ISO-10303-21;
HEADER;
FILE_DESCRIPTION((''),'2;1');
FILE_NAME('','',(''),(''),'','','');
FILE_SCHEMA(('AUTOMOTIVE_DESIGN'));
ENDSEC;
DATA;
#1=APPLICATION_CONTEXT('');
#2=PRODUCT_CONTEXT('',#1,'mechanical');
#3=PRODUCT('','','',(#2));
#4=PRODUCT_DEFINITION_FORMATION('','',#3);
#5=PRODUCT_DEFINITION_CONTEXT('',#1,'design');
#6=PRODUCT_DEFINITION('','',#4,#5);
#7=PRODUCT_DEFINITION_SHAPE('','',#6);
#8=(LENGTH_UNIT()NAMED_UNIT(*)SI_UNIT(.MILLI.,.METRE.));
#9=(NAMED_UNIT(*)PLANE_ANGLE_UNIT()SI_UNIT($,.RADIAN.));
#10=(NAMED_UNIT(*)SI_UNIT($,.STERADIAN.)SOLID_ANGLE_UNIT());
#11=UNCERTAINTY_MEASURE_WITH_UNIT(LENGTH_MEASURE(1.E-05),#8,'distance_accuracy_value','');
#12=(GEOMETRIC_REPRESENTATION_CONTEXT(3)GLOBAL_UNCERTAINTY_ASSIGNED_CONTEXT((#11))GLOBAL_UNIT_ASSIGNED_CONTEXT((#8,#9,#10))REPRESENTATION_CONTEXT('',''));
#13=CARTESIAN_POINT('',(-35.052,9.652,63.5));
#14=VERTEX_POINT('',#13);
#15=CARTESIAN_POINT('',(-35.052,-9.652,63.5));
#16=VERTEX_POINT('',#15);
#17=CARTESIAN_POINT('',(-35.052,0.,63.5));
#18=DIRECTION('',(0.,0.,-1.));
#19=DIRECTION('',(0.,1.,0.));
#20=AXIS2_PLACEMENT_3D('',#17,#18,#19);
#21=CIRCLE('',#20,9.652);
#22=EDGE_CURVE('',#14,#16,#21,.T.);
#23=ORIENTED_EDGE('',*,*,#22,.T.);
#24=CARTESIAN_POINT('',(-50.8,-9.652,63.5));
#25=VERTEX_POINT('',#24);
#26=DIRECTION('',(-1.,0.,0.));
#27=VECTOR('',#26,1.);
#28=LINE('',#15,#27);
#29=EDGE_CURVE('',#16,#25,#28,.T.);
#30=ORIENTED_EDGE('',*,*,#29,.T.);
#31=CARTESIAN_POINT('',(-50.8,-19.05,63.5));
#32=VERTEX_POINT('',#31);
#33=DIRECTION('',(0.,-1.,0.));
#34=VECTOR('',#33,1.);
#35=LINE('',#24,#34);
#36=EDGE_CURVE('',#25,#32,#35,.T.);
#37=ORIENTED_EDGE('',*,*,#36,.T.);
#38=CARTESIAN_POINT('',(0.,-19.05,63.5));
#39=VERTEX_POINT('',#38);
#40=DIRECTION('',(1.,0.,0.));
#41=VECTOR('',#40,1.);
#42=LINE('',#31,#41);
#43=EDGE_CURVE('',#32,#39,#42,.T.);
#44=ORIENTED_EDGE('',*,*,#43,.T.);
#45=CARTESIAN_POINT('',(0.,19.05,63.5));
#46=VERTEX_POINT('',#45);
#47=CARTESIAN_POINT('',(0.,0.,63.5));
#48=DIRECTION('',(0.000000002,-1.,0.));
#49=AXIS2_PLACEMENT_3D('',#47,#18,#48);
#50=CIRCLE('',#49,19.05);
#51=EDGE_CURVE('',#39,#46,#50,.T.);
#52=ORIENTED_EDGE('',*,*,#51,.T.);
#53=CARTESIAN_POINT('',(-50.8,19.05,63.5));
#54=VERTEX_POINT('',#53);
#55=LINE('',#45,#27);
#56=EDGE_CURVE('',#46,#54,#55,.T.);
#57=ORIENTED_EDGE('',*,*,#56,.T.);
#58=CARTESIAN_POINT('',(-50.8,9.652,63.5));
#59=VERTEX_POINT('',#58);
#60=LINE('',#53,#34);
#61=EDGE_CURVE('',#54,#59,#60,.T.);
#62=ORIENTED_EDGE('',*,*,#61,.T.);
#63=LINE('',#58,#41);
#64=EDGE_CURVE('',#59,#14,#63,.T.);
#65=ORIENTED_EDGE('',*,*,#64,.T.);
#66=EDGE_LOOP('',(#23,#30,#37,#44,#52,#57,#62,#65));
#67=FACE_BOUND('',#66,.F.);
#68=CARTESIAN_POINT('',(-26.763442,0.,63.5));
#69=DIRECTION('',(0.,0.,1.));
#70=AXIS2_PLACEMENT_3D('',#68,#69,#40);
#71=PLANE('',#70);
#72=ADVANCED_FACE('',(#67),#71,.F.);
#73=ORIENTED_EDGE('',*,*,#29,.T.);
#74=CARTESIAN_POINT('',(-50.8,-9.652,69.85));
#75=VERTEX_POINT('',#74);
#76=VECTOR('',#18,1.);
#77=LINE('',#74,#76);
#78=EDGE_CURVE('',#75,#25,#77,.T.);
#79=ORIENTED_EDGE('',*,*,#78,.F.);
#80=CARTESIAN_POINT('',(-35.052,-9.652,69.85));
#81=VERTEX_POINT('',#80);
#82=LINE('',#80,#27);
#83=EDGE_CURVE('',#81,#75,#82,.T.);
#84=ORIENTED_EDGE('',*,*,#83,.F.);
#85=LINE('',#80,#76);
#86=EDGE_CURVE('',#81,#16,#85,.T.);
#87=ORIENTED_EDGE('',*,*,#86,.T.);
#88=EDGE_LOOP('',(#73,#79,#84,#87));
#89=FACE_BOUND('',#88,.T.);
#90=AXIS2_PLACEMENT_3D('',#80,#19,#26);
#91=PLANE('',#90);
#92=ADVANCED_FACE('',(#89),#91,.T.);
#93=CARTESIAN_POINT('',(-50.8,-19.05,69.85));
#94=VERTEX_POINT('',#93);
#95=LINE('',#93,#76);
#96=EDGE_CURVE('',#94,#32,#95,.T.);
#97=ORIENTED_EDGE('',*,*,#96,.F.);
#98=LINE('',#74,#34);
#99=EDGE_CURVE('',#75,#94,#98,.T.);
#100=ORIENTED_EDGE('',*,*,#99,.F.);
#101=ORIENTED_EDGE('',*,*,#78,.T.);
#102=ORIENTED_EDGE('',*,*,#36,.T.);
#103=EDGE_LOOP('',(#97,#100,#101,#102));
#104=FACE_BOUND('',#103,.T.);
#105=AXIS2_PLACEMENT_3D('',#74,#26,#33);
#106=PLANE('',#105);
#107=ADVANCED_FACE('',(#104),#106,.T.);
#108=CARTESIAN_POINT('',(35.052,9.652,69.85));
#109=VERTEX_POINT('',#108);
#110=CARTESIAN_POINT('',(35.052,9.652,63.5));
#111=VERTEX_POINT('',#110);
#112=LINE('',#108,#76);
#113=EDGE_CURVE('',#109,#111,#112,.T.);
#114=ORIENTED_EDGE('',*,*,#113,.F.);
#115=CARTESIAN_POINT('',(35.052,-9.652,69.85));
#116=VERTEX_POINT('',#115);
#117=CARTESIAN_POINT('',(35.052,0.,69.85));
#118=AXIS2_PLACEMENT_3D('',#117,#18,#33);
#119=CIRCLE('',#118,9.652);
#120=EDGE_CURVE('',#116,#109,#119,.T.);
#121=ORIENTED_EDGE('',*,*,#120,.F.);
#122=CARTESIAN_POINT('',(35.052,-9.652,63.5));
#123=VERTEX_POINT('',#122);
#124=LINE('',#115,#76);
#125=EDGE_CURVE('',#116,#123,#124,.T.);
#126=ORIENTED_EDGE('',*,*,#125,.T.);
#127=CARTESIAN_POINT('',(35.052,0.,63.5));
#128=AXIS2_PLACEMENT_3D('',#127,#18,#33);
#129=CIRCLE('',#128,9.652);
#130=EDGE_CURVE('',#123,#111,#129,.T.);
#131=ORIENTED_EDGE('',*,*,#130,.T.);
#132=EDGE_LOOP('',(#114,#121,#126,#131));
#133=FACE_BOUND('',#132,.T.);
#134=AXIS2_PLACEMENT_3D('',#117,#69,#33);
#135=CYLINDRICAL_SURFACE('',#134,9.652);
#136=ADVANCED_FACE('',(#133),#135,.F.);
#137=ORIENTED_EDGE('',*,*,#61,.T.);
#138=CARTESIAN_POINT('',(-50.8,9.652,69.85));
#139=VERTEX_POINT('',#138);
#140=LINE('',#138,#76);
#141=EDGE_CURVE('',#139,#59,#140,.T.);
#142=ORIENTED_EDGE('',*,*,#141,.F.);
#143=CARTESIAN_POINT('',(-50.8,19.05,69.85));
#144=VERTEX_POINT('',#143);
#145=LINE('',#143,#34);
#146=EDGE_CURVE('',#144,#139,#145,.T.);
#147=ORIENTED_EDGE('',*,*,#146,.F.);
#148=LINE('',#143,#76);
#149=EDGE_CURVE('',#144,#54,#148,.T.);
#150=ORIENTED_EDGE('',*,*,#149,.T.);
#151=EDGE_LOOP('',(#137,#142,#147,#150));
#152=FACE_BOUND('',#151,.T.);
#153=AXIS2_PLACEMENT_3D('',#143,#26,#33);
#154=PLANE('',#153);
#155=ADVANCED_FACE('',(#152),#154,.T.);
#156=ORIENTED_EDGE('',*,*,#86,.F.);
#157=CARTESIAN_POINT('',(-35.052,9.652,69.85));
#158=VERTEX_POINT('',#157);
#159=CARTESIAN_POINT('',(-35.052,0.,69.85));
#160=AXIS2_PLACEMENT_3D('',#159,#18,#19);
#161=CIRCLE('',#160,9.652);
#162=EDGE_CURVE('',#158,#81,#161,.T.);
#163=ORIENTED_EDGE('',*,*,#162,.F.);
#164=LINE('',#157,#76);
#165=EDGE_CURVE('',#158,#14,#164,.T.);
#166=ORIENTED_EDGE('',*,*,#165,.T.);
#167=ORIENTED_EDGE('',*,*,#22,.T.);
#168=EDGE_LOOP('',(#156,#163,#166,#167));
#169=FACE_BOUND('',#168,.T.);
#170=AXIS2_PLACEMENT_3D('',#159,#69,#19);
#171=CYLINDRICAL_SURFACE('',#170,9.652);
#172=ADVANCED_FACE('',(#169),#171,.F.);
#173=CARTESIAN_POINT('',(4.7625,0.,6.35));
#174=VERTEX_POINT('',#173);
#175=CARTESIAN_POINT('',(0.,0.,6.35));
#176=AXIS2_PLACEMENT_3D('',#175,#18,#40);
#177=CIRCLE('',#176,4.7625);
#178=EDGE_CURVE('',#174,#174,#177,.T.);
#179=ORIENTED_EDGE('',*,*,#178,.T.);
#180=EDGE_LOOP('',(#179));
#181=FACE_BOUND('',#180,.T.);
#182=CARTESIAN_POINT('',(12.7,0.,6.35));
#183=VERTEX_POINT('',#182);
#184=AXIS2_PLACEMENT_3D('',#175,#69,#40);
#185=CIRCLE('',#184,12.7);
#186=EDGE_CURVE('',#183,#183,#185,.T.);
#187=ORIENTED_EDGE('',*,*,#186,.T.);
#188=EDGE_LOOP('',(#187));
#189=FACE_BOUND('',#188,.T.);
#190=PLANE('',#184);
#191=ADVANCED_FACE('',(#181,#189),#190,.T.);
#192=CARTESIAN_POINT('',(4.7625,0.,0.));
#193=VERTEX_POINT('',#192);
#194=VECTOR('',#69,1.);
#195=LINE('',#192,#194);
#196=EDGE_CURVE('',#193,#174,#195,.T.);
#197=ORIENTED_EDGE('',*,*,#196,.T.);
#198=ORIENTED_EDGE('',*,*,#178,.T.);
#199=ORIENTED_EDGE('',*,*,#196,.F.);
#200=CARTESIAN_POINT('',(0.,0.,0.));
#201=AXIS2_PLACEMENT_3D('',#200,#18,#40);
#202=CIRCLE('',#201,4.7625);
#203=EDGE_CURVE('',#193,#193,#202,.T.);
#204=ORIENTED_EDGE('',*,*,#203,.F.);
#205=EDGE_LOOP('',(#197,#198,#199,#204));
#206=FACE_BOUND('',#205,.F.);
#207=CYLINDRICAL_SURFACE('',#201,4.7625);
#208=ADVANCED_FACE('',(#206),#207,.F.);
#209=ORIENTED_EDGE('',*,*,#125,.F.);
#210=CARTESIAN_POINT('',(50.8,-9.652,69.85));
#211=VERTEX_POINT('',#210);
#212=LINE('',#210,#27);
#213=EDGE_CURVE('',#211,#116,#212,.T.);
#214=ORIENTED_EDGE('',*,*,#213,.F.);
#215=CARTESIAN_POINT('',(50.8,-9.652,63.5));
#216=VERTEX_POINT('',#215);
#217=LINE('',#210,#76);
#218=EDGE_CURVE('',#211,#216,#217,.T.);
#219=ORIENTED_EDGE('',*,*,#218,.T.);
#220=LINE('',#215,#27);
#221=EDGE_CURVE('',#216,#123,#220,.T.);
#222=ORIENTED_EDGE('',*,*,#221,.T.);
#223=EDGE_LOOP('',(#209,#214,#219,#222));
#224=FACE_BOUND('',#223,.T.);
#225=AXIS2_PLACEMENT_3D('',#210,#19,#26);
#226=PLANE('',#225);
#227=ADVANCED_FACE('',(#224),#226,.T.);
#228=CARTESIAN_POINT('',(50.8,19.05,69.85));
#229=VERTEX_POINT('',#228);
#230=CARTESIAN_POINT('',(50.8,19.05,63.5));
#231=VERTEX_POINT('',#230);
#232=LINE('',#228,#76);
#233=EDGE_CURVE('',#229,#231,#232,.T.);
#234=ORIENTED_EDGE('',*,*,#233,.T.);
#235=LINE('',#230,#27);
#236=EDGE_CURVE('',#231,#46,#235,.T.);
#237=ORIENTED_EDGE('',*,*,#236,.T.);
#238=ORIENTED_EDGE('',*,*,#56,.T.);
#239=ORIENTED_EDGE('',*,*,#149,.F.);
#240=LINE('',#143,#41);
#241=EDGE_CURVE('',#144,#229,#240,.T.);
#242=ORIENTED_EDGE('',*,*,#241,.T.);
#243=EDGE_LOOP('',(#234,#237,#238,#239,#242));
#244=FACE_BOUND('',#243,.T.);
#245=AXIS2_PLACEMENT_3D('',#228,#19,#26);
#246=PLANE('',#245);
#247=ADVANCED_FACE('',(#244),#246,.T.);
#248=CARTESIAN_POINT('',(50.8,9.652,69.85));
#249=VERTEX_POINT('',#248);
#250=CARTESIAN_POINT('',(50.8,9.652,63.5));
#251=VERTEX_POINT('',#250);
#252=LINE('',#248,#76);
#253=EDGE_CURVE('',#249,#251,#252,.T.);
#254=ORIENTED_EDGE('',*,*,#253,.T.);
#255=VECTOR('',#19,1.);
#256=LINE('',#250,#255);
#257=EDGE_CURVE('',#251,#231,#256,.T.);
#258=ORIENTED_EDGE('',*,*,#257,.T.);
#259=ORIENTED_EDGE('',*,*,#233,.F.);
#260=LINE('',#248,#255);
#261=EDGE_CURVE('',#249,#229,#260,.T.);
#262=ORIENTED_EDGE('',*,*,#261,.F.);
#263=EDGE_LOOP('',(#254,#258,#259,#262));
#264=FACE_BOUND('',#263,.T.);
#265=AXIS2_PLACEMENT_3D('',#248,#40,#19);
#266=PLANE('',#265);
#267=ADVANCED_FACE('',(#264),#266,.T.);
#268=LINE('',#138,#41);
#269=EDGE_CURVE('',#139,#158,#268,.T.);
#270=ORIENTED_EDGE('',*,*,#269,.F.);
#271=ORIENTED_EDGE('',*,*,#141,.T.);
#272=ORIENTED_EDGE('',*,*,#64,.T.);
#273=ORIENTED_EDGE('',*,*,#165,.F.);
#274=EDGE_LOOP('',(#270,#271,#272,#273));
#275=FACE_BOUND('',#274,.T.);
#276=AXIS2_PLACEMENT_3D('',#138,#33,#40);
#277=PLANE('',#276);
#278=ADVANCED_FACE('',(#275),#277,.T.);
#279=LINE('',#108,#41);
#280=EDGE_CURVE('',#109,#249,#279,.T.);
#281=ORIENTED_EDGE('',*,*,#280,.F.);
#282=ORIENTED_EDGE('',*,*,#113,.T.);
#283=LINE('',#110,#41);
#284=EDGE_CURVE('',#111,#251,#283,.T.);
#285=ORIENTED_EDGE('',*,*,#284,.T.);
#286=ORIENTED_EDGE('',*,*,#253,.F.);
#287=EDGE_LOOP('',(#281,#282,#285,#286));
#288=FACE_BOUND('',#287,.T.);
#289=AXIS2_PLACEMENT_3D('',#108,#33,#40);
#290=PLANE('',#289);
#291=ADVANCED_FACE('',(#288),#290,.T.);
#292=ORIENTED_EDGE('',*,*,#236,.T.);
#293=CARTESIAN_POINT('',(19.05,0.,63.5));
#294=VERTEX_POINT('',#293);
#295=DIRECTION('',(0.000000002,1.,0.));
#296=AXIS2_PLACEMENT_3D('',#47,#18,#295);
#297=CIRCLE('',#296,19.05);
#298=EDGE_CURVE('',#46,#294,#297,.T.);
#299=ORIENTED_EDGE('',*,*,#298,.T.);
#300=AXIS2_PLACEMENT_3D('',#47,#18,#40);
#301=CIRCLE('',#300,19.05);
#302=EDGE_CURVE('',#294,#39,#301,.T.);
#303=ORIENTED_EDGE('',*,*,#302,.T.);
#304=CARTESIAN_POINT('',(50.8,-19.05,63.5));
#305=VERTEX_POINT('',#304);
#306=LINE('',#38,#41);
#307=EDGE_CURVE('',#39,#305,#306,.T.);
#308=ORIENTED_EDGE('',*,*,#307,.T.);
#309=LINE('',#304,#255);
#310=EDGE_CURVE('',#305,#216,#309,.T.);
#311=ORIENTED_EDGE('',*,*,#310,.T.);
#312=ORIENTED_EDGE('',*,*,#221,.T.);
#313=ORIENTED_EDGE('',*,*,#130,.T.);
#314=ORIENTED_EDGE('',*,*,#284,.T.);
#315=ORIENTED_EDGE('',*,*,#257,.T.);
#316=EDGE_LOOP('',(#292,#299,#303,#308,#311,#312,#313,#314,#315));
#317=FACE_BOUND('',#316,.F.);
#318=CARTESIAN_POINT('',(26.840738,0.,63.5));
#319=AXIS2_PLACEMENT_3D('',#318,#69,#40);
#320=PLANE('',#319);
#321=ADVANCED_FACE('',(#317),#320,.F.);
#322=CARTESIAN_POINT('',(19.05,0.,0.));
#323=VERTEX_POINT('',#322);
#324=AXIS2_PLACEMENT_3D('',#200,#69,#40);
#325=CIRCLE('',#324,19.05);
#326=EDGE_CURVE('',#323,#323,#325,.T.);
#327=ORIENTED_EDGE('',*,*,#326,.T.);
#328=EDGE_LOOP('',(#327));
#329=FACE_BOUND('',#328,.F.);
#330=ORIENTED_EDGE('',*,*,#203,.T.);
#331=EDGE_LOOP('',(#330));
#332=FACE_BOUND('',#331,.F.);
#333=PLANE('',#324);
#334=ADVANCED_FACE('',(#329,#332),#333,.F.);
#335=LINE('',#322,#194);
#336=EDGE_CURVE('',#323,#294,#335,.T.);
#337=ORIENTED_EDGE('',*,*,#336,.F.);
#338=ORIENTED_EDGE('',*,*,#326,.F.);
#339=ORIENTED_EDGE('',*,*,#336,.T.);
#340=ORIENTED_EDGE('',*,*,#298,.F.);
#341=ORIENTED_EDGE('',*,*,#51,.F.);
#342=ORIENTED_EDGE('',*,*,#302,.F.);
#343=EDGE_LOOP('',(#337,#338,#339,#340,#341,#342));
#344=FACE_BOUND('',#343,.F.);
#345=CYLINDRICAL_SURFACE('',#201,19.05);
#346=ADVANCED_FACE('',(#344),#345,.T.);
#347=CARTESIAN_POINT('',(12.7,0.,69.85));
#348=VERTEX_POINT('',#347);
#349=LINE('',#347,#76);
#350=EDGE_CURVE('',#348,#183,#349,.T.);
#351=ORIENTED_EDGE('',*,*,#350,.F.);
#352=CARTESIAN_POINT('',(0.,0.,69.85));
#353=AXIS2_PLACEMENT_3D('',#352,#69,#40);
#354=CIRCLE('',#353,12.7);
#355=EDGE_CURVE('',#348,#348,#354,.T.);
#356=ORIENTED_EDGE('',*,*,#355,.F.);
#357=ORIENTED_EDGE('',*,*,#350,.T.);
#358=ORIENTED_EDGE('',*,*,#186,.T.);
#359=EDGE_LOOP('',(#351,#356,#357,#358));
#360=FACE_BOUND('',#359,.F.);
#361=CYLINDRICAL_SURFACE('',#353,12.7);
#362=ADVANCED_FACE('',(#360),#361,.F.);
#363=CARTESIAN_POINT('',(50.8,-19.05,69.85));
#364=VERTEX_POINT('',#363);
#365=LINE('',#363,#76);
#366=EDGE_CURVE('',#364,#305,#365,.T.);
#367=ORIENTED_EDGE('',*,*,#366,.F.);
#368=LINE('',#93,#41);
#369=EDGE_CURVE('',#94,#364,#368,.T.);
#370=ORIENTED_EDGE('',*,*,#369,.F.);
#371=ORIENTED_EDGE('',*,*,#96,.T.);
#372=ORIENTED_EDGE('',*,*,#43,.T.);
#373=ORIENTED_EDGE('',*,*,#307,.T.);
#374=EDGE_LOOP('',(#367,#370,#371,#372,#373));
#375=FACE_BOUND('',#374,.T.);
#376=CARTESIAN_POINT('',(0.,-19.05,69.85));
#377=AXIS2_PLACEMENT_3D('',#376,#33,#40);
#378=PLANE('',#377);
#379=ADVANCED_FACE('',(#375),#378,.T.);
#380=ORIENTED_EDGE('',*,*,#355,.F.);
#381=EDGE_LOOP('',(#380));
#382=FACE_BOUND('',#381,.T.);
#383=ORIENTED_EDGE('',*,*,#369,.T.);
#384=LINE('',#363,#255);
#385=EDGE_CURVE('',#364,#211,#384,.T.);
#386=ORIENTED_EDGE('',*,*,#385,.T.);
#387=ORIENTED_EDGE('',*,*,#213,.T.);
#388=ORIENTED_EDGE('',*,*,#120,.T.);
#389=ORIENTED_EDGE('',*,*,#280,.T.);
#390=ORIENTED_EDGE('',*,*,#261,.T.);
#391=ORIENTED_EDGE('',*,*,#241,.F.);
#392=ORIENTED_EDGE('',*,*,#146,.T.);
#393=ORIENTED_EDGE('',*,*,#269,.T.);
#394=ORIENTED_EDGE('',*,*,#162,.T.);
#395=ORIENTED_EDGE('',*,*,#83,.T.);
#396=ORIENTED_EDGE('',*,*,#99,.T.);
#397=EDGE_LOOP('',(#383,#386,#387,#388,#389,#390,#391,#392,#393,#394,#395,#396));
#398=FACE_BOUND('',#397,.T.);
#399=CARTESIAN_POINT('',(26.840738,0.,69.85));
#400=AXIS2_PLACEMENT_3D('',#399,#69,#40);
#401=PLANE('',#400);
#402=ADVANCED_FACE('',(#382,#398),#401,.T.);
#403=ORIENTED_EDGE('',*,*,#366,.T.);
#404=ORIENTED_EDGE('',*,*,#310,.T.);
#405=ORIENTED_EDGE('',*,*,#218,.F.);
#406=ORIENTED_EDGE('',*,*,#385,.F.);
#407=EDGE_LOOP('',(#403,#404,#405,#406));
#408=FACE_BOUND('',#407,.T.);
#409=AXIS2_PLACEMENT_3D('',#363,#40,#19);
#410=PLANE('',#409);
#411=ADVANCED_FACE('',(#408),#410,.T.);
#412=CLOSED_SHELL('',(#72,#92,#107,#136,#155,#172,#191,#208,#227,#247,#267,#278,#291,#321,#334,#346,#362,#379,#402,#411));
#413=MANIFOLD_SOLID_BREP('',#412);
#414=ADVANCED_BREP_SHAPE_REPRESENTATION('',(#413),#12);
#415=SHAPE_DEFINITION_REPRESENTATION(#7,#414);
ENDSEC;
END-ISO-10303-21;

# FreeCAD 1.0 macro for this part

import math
import FreeCAD as App
import Part
import Sketcher

V = App.Vector
Q = App.Units.Quantity

doc = App.newDocument("Part")
body = doc.addObject("PartDesign::Body", "Body")

sketch1 = doc.addObject("Sketcher::SketchObject", "Sketch")
body.addObject(sketch1)
sketch1.AttachmentSupport = (doc.XY_Plane, [""])
sketch1.MapMode = "FlatFace"
sketch1.addGeometry(Part.Circle(V(0, 0, 0), V(0, 0, 1), 19), False)
sketch1.addConstraint([
    Sketcher.Constraint("Coincident", 0, 3, -1, 1),
    Sketcher.Constraint("Diameter", 0, Q("1.5 in")),
])
pad1 = doc.addObject("PartDesign::Pad", "Pad")
body.addObject(pad1)
pad1.Profile = sketch1
pad1.Length = Q("2.75 in")

sketch2 = doc.addObject("Sketcher::SketchObject", "Sketch001")
body.addObject(sketch2)
sketch2.AttachmentSupport = (doc.XY_Plane, [""])
sketch2.MapMode = "FlatFace"
sketch2.AttachmentOffset = App.Placement(V(0, 0, 2.75 * 25.4), App.Rotation())
sketch2.addGeometry(Part.Circle(V(0, 0, 0), V(0, 0, 1), 13), False)
sketch2.addConstraint([
    Sketcher.Constraint("Coincident", 0, 3, -1, 1),
    Sketcher.Constraint("Diameter", 0, Q("1 in")),
])
pocket1 = doc.addObject("PartDesign::Pocket", "Pocket")
body.addObject(pocket1)
pocket1.Profile = sketch2
pocket1.Length = Q("2.5 in")

sketch3 = doc.addObject("Sketcher::SketchObject", "Sketch002")
body.addObject(sketch3)
sketch3.AttachmentSupport = (doc.XY_Plane, [""])
sketch3.MapMode = "FlatFace"
sketch3.AttachmentOffset = App.Placement(V(0, 0, 2.75 * 25.4), App.Rotation())
sketch3.addGeometry([
    Part.LineSegment(V(51, 19, 0), V(0, 19, 0)),
    Part.ArcOfCircle(Part.Circle(V(0, 0, 0), V(0, 0, 1), 19), math.radians(0), math.radians(90)),
    Part.ArcOfCircle(Part.Circle(V(0, 0, 0), V(0, 0, 1), 19), math.radians(-90), math.radians(0)),
    Part.LineSegment(V(0, -19, 0), V(51, -19, 0)),
    Part.LineSegment(V(51, -19, 0), V(51, -10, 0)),
    Part.LineSegment(V(51, -10, 0), V(35, -10, 0)),
    Part.ArcOfCircle(Part.Circle(V(35, 0, 0), V(0, 0, 1), 10), math.radians(90), math.radians(270)),
    Part.LineSegment(V(35, 10, 0), V(51, 10, 0)),
    Part.LineSegment(V(51, 10, 0), V(51, 19, 0)),
    Part.LineSegment(V(0, 19, 0), V(-51, 19, 0)),
    Part.LineSegment(V(-51, 19, 0), V(-51, 10, 0)),
    Part.LineSegment(V(-51, 10, 0), V(-35, 10, 0)),
    Part.ArcOfCircle(Part.Circle(V(-35, 0, 0), V(0, 0, 1), 10), math.radians(-90), math.radians(90)),
    Part.LineSegment(V(-35, -10, 0), V(-51, -10, 0)),
    Part.LineSegment(V(-51, -10, 0), V(-51, -19, 0)),
    Part.LineSegment(V(-51, -19, 0), V(0, -19, 0)),
    Part.ArcOfCircle(Part.Circle(V(0, 0, 0), V(0, 0, 1), 19), math.radians(90), math.radians(270)),
], False)
sketch3.addConstraint([
    Sketcher.Constraint("Tangent", 0, 2, 1, 2),
    Sketcher.Constraint("Tangent", 1, 1, 2, 2),
    Sketcher.Constraint("Tangent", 2, 1, 3, 1),
    Sketcher.Constraint("Coincident", 3, 2, 4, 1),
    Sketcher.Constraint("Coincident", 4, 2, 5, 1),
    Sketcher.Constraint("Tangent", 5, 2, 6, 2),
    Sketcher.Constraint("Tangent", 6, 1, 7, 1),
    Sketcher.Constraint("Coincident", 7, 2, 8, 1),
    Sketcher.Constraint("Coincident", 8, 2, 0, 1),
    Sketcher.Constraint("Coincident", 9, 2, 10, 1),
    Sketcher.Constraint("Coincident", 10, 2, 11, 1),
    Sketcher.Constraint("Tangent", 11, 2, 12, 2),
    Sketcher.Constraint("Tangent", 12, 1, 13, 1),
    Sketcher.Constraint("Coincident", 13, 2, 14, 1),
    Sketcher.Constraint("Coincident", 14, 2, 15, 1),
    Sketcher.Constraint("Tangent", 15, 2, 16, 2),
    Sketcher.Constraint("Tangent", 16, 1, 9, 1),
    Sketcher.Constraint("Horizontal", 0),
    Sketcher.Constraint("Horizontal", 3),
    Sketcher.Constraint("Vertical", 4),
    Sketcher.Constraint("Horizontal", 5),
    Sketcher.Constraint("Horizontal", 7),
    Sketcher.Constraint("Vertical", 8),
    Sketcher.Constraint("Horizontal", 9),
    Sketcher.Constraint("Vertical", 10),
    Sketcher.Constraint("Horizontal", 11),
    Sketcher.Constraint("Horizontal", 13),
    Sketcher.Constraint("Vertical", 14),
    Sketcher.Constraint("Horizontal", 15),
    Sketcher.Constraint("Coincident", 1, 3, -1, 1),
    Sketcher.Constraint("Coincident", 16, 3, -1, 1),
    Sketcher.Constraint("Coincident", 15, 2, 2, 1),
    Sketcher.Constraint("Equal", 6, 12),
    Sketcher.Constraint("Symmetric", 6, 3, 12, 3, -1, 1),
    Sketcher.Constraint("Symmetric", 7, 2, 10, 2, -2),
    Sketcher.Constraint("PointOnObject", 1, 1, -1),
    Sketcher.Constraint("Vertical", 4, 2, 7, 2),
    Sketcher.Constraint("Vertical", 10, 2, 13, 2),
    Sketcher.Constraint("DistanceX", 0, 2, 0, 1, Q("2 in")),
    Sketcher.Constraint("Radius", 1, Q("0.75 in")),
    Sketcher.Constraint("Radius", 6, Q("0.38 in")),
    Sketcher.Constraint("DistanceX", 5, 2, 5, 1, Q("0.62 in")),
])
pad2 = doc.addObject("PartDesign::Pad", "Pad001")
body.addObject(pad2)
pad2.Profile = sketch3
pad2.Length = Q("0.25 in")
pad2.Reversed = True

sketch4 = doc.addObject("Sketcher::SketchObject", "Sketch003")
body.addObject(sketch4)
sketch4.AttachmentSupport = (doc.XY_Plane, [""])
sketch4.MapMode = "FlatFace"
sketch4.addGeometry(Part.Circle(V(0, 0, 0), V(0, 0, 1), 4.8), False)
sketch4.addConstraint([
    Sketcher.Constraint("Coincident", 0, 3, -1, 1),
    Sketcher.Constraint("Diameter", 0, Q("0.375 in")),
])
pocket2 = doc.addObject("PartDesign::Pocket", "Pocket001")
body.addObject(pocket2)
pocket2.Profile = sketch4
pocket2.Type = "ThroughAll"
pocket2.Reversed = True

doc.recompute()
